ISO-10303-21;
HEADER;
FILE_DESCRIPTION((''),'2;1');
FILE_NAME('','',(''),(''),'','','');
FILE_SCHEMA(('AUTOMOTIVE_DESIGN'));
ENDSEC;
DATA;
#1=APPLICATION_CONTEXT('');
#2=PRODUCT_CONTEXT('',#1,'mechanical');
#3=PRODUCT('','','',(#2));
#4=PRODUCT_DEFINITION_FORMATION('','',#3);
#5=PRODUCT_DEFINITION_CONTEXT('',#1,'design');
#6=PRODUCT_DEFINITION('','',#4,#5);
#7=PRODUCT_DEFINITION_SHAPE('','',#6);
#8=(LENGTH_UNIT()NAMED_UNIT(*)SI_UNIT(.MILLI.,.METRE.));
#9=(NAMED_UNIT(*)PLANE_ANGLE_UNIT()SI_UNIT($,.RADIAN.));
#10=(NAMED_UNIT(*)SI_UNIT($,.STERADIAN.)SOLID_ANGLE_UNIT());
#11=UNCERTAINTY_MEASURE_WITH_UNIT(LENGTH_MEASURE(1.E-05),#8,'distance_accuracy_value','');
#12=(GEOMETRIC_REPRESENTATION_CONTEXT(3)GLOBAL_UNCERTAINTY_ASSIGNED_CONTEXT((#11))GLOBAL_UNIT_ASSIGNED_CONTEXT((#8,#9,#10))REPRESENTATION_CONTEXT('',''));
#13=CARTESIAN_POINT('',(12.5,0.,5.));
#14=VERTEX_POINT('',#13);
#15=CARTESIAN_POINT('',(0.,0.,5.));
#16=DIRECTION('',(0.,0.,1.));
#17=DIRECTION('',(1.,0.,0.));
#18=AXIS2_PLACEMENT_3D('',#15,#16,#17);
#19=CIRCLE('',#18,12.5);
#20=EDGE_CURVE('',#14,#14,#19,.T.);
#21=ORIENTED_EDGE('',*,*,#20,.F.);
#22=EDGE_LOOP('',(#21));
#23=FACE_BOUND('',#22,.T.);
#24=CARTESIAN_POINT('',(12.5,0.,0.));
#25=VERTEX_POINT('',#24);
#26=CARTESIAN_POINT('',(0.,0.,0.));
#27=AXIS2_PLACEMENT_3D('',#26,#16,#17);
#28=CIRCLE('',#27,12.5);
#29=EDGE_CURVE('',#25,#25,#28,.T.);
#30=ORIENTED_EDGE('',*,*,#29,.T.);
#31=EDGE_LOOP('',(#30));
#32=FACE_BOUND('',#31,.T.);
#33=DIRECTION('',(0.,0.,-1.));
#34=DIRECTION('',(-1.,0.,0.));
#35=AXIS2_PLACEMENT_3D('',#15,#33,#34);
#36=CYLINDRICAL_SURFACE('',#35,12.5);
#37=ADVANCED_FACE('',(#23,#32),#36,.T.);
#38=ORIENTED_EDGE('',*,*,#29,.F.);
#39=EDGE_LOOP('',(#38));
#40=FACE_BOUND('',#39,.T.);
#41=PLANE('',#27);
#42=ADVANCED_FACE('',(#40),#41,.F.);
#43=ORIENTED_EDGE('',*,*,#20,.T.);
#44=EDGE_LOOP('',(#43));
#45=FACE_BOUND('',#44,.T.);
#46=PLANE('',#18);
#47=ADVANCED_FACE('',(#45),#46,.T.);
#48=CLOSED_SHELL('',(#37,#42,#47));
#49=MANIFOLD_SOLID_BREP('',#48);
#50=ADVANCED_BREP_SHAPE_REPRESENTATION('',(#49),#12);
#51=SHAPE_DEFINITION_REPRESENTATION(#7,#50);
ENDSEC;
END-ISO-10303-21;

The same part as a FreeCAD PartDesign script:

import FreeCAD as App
import Part
import Sketcher
from FreeCAD import Vector
Q = App.Units.Quantity

doc = App.newDocument("Part")
body = doc.addObject("PartDesign::Body", "Body")

sketch1 = body.newObject("Sketcher::SketchObject", "Sketch")
sketch1.AttachmentSupport = (doc.getObject("XY_Plane"), [""])
sketch1.MapMode = "FlatFace"
sketch1.addGeometry(Part.Circle(Vector(0, 0, 0), Vector(0, 0, 1), 12.5), False)
sketch1.addConstraint(Sketcher.Constraint("Coincident", 0, 3, -1, 1))
sketch1.addConstraint(Sketcher.Constraint("Diameter", 0, Q("25 mm")))
pad1 = body.newObject("PartDesign::Pad", "Pad")
pad1.Profile = sketch1
pad1.Length = 5

doc.recompute()
